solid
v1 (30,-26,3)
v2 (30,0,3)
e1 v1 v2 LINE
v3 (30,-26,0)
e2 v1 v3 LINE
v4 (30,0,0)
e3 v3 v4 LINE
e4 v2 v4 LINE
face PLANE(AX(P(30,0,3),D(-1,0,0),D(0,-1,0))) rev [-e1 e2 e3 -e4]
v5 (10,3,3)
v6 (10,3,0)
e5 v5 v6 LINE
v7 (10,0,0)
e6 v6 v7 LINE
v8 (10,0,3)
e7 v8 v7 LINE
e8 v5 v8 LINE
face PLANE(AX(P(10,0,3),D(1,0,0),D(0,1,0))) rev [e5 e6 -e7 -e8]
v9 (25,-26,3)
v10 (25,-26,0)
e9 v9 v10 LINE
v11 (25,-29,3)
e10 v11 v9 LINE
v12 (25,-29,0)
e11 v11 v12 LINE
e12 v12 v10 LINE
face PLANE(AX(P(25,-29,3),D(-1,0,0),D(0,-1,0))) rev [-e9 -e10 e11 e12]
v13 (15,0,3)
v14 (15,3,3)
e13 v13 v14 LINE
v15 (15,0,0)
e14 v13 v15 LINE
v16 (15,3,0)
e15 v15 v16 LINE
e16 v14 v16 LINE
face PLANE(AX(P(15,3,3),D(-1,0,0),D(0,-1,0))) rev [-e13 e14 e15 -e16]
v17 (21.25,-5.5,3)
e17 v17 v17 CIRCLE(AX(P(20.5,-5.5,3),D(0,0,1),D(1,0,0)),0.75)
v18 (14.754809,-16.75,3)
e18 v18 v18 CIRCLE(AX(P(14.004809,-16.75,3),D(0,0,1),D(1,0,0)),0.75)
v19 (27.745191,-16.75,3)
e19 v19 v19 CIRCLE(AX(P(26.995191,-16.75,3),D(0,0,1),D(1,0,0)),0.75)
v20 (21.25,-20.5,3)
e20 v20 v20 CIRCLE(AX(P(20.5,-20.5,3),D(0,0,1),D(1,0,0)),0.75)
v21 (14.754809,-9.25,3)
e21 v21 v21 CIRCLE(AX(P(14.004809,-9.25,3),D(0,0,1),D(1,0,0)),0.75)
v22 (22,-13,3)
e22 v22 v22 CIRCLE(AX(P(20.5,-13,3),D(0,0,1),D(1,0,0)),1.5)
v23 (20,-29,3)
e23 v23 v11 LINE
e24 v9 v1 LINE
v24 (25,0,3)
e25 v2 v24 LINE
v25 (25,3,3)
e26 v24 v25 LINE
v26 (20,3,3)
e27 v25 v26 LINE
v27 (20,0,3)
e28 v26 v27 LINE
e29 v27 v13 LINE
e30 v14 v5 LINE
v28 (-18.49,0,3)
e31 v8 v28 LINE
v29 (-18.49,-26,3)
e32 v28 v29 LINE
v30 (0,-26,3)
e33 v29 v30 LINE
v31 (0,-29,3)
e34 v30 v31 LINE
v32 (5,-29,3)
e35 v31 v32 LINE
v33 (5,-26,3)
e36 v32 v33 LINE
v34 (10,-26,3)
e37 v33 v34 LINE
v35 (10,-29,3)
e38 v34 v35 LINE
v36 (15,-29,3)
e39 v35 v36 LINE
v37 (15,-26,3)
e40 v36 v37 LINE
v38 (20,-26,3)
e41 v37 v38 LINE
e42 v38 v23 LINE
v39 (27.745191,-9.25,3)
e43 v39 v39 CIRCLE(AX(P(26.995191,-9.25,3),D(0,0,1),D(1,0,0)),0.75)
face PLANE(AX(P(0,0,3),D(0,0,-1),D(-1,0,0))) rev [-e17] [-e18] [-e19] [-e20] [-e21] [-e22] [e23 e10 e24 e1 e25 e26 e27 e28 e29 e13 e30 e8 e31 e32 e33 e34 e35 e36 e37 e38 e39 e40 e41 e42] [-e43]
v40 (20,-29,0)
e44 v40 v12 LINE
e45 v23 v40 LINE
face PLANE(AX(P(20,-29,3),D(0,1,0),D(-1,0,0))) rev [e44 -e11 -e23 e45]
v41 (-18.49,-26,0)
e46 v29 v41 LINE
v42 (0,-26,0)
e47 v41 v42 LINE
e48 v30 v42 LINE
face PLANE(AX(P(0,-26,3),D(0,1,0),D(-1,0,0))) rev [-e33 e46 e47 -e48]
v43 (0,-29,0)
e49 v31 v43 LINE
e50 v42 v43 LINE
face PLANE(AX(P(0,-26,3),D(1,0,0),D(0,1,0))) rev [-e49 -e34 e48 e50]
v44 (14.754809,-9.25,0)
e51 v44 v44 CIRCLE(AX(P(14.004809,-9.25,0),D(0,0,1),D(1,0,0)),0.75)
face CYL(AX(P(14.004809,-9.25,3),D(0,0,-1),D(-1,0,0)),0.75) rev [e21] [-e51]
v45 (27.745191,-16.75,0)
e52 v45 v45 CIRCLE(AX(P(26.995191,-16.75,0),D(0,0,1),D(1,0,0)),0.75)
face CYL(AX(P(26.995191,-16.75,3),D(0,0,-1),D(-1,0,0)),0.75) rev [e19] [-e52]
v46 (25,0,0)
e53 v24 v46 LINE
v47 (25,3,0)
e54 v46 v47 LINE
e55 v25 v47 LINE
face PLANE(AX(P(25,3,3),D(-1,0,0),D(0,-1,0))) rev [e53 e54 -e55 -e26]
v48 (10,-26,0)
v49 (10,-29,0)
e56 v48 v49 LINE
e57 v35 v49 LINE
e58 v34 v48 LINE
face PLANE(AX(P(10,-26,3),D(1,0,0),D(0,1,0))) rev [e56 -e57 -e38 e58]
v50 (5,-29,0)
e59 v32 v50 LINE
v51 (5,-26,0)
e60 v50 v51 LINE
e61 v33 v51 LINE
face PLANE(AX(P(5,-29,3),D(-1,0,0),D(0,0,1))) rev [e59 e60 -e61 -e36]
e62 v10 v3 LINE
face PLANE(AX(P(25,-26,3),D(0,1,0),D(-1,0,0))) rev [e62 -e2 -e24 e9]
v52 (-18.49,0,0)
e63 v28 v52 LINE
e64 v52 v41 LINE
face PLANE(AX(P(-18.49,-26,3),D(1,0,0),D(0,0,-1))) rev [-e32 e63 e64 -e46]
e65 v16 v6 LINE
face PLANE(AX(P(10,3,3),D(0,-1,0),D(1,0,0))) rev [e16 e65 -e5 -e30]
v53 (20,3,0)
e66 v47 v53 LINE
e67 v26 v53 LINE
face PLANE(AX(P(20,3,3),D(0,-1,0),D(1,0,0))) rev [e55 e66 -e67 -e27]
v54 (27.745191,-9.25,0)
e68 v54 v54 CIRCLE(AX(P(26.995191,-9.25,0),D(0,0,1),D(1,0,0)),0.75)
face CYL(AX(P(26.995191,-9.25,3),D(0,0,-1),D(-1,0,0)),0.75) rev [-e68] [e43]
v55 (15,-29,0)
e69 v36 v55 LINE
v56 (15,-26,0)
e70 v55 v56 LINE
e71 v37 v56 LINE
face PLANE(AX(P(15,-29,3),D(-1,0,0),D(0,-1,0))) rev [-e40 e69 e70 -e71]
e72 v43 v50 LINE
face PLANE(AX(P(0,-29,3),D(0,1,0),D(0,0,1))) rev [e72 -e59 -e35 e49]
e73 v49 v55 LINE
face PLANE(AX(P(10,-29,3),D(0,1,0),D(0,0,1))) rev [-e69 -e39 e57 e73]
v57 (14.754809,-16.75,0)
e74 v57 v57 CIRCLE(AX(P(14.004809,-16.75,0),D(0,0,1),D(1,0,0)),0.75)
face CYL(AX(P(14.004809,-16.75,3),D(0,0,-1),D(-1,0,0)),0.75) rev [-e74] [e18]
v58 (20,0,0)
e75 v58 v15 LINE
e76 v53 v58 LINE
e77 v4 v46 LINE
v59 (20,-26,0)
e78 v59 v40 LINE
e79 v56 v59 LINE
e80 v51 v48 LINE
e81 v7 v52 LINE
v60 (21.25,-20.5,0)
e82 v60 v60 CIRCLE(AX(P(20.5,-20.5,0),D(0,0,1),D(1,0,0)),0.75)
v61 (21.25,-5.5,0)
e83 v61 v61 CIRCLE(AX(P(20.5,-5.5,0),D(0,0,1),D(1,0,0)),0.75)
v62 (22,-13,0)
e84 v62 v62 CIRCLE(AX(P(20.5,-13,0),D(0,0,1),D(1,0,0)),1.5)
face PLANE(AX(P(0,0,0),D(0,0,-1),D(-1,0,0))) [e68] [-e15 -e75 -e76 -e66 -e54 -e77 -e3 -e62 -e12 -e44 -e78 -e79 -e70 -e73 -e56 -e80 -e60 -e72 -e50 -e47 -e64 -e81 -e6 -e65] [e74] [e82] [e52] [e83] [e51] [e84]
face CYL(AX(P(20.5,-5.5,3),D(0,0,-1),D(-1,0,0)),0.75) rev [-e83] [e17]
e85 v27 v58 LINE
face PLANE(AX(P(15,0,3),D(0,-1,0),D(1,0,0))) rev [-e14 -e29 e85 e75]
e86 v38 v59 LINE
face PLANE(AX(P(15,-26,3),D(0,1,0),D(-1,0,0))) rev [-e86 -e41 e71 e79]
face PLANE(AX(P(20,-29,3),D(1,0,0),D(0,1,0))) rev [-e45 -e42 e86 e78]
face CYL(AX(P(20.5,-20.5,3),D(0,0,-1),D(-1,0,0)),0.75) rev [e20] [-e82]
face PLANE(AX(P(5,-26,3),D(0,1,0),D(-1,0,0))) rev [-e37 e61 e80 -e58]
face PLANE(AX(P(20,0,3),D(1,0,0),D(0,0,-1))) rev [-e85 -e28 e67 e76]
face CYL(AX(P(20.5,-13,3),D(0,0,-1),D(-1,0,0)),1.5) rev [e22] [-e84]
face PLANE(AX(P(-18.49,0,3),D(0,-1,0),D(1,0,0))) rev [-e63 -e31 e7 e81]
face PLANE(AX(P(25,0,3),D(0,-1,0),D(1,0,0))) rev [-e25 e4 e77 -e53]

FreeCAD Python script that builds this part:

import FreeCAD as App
import Part
import Sketcher

V = App.Vector
Q = App.Units.Quantity

doc = App.newDocument("Part")
body = doc.addObject("PartDesign::Body", "Body")

# Sketch on XY plane
sketch1 = doc.addObject("Sketcher::SketchObject", "Sketch")
body.addObject(sketch1)
sketch1.AttachmentSupport = (doc.XY_Plane, [""])
sketch1.MapMode = "FlatFace"
sketch1.addGeometry(Part.LineSegment(V(10, 3, 0), V(10, 0, 0)), False)
sketch1.addGeometry(Part.LineSegment(V(10, 0, 0), V(-18.5, 0, 0)), False)
sketch1.addGeometry(Part.LineSegment(V(-18.5, 0, 0), V(-18.5, -26, 0)), False)
sketch1.addGeometry(Part.LineSegment(V(-18.5, -26, 0), V(0, -26, 0)), False)
sketch1.addGeometry(Part.LineSegment(V(0, -26, 0), V(0, -29, 0)), False)
sketch1.addGeometry(Part.LineSegment(V(0, -29, 0), V(5, -29, 0)), False)
sketch1.addGeometry(Part.LineSegment(V(5, -29, 0), V(5, -26, 0)), False)
sketch1.addGeometry(Part.LineSegment(V(5, -26, 0), V(10, -26, 0)), False)
sketch1.addGeometry(Part.LineSegment(V(10, -26, 0), V(10, -29, 0)), False)
sketch1.addGeometry(Part.LineSegment(V(10, -29, 0), V(15, -29, 0)), False)
sketch1.addGeometry(Part.LineSegment(V(15, -29, 0), V(15, -26, 0)), False)
sketch1.addGeometry(Part.LineSegment(V(15, -26, 0), V(20, -26, 0)), False)
sketch1.addGeometry(Part.LineSegment(V(20, -26, 0), V(20, -29, 0)), False)
sketch1.addGeometry(Part.LineSegment(V(20, -29, 0), V(25, -29, 0)), False)
sketch1.addGeometry(Part.LineSegment(V(25, -29, 0), V(25, -26, 0)), False)
sketch1.addGeometry(Part.LineSegment(V(25, -26, 0), V(30, -26, 0)), False)
sketch1.addGeometry(Part.LineSegment(V(30, -26, 0), V(30, 0, 0)), False)
sketch1.addGeometry(Part.LineSegment(V(30, 0, 0), V(25, 0, 0)), False)
sketch1.addGeometry(Part.LineSegment(V(25, 0, 0), V(25, 3, 0)), False)
sketch1.addGeometry(Part.LineSegment(V(25, 3, 0), V(20, 3, 0)), False)
sketch1.addGeometry(Part.LineSegment(V(20, 3, 0), V(20, 0, 0)), False)
sketch1.addGeometry(Part.LineSegment(V(20, 0, 0), V(15, 0, 0)), False)
sketch1.addGeometry(Part.LineSegment(V(15, 0, 0), V(15, 3, 0)), False)
sketch1.addGeometry(Part.LineSegment(V(15, 3, 0), V(10, 3, 0)), False)
sketch1.addGeometry(Part.Circle(V(20.5, -20.5, 0), V(0, 0, 1), 0.8), False)
sketch1.addGeometry(Part.Circle(V(27, -16.8, 0), V(0, 0, 1), 0.8), False)
sketch1.addGeometry(Part.Circle(V(14, -16.8, 0), V(0, 0, 1), 0.8), False)
sketch1.addGeometry(Part.Circle(V(27, -9.2, 0), V(0, 0, 1), 0.8), False)
sketch1.addGeometry(Part.Circle(V(20.5, -13, 0), V(0, 0, 1), 1.5), False)
sketch1.addGeometry(Part.Circle(V(20.5, -5.5, 0), V(0, 0, 1), 0.8), False)
sketch1.addGeometry(Part.Circle(V(14, -9.2, 0), V(0, 0, 1), 0.8), False)
sketch1.addConstraint(Sketcher.Constraint("Coincident", 0, 2, 1, 1))
sketch1.addConstraint(Sketcher.Constraint("Coincident", 1, 2, 2, 1))
sketch1.addConstraint(Sketcher.Constraint("Coincident", 2, 2, 3, 1))
sketch1.addConstraint(Sketcher.Constraint("Coincident", 3, 2, 4, 1))
sketch1.addConstraint(Sketcher.Constraint("Coincident", 4, 2, 5, 1))
sketch1.addConstraint(Sketcher.Constraint("Coincident", 5, 2, 6, 1))
sketch1.addConstraint(Sketcher.Constraint("Coincident", 6, 2, 7, 1))
sketch1.addConstraint(Sketcher.Constraint("Coincident", 7, 2, 8, 1))
sketch1.addConstraint(Sketcher.Constraint("Coincident", 8, 2, 9, 1))
sketch1.addConstraint(Sketcher.Constraint("Coincident", 9, 2, 10, 1))
sketch1.addConstraint(Sketcher.Constraint("Coincident", 10, 2, 11, 1))
sketch1.addConstraint(Sketcher.Constraint("Coincident", 11, 2, 12, 1))
sketch1.addConstraint(Sketcher.Constraint("Coincident", 12, 2, 13, 1))
sketch1.addConstraint(Sketcher.Constraint("Coincident", 13, 2, 14, 1))
sketch1.addConstraint(Sketcher.Constraint("Coincident", 14, 2, 15, 1))
sketch1.addConstraint(Sketcher.Constraint("Coincident", 15, 2, 16, 1))
sketch1.addConstraint(Sketcher.Constraint("Coincident", 16, 2, 17, 1))
sketch1.addConstraint(Sketcher.Constraint("Coincident", 17, 2, 18, 1))
sketch1.addConstraint(Sketcher.Constraint("Coincident", 18, 2, 19, 1))
sketch1.addConstraint(Sketcher.Constraint("Coincident", 19, 2, 20, 1))
sketch1.addConstraint(Sketcher.Constraint("Coincident", 20, 2, 21, 1))
sketch1.addConstraint(Sketcher.Constraint("Coincident", 21, 2, 22, 1))
sketch1.addConstraint(Sketcher.Constraint("Coincident", 22, 2, 23, 1))
sketch1.addConstraint(Sketcher.Constraint("Coincident", 23, 2, 0, 1))
sketch1.addConstraint(Sketcher.Constraint("Vertical", 0))
sketch1.addConstraint(Sketcher.Constraint("Horizontal", 1))
sketch1.addConstraint(Sketcher.Constraint("Vertical", 2))
sketch1.addConstraint(Sketcher.Constraint("Horizontal", 3))
sketch1.addConstraint(Sketcher.Constraint("Vertical", 4))
sketch1.addConstraint(Sketcher.Constraint("Horizontal", 5))
sketch1.addConstraint(Sketcher.Constraint("Vertical", 6))
sketch1.addConstraint(Sketcher.Constraint("Horizontal", 7))
sketch1.addConstraint(Sketcher.Constraint("Vertical", 8))
sketch1.addConstraint(Sketcher.Constraint("Horizontal", 9))
sketch1.addConstraint(Sketcher.Constraint("Vertical", 10))
sketch1.addConstraint(Sketcher.Constraint("Horizontal", 11))
sketch1.addConstraint(Sketcher.Constraint("Vertical", 12))
sketch1.addConstraint(Sketcher.Constraint("Horizontal", 13))
sketch1.addConstraint(Sketcher.Constraint("Vertical", 14))
sketch1.addConstraint(Sketcher.Constraint("Horizontal", 15))
sketch1.addConstraint(Sketcher.Constraint("Vertical", 16))
sketch1.addConstraint(Sketcher.Constraint("Horizontal", 17))
sketch1.addConstraint(Sketcher.Constraint("Vertical", 18))
sketch1.addConstraint(Sketcher.Constraint("Horizontal", 19))
sketch1.addConstraint(Sketcher.Constraint("Vertical", 20))
sketch1.addConstraint(Sketcher.Constraint("Horizontal", 21))
sketch1.addConstraint(Sketcher.Constraint("Vertical", 22))
sketch1.addConstraint(Sketcher.Constraint("Horizontal", 23))
sketch1.addConstraint(Sketcher.Constraint("Equal", 24, 25))
sketch1.addConstraint(Sketcher.Constraint("Equal", 25, 26))
sketch1.addConstraint(Sketcher.Constraint("Equal", 26, 27))
sketch1.addConstraint(Sketcher.Constraint("Equal", 27, 29))
sketch1.addConstraint(Sketcher.Constraint("Equal", 29, 30))
sketch1.addConstraint(Sketcher.Constraint("PointOnObject", 0, 2, -1))
sketch1.addConstraint(Sketcher.Constraint("PointOnObject", 3, 2, -2))
sketch1.addConstraint(Sketcher.Constraint("PointOnObject", 16, 2, -1))
sketch1.addConstraint(Sketcher.Constraint("PointOnObject", 20, 2, -1))
sketch1.addConstraint(Sketcher.Constraint("Horizontal", 25, 3, 26, 3))
sketch1.addConstraint(Sketcher.Constraint("Horizontal", 27, 3, 30, 3))
sketch1.addConstraint(Sketcher.Constraint("Horizontal", 3, 2, 6, 2))
sketch1.addConstraint(Sketcher.Constraint("Horizontal", 5, 2, 8, 2))
sketch1.addConstraint(Sketcher.Constraint("Horizontal", 7, 2, 10, 2))
sketch1.addConstraint(Sketcher.Constraint("Horizontal", 9, 2, 12, 2))
sketch1.addConstraint(Sketcher.Constraint("Horizontal", 11, 2, 14, 2))
sketch1.addConstraint(Sketcher.Constraint("Horizontal", 19, 2, 22, 2))
sketch1.addConstraint(Sketcher.Constraint("Vertical", 25, 3, 27, 3))
sketch1.addConstraint(Sketcher.Constraint("Vertical", 24, 3, 28, 3))
sketch1.addConstraint(Sketcher.Constraint("Vertical", 28, 3, 29, 3))
sketch1.addConstraint(Sketcher.Constraint("Vertical", 26, 3, 30, 3))
sketch1.addConstraint(Sketcher.Constraint("Vertical", 0, 2, 7, 2))
sketch1.addConstraint(Sketcher.Constraint("Vertical", 14, 2, 17, 2))
sketch1.addConstraint(Sketcher.Constraint("Vertical", 12, 2, 19, 2))
sketch1.addConstraint(Sketcher.Constraint("Vertical", 10, 2, 21, 2))
sketch1.addConstraint(Sketcher.Constraint("Equal", 5, 7))
sketch1.addConstraint(Sketcher.Constraint("Equal", 7, 9))
sketch1.addConstraint(Sketcher.Constraint("Equal", 9, 11))
sketch1.addConstraint(Sketcher.Constraint("Equal", 11, 13))
sketch1.addConstraint(Sketcher.Constraint("Equal", 13, 15))
sketch1.addConstraint(Sketcher.Constraint("Equal", 0, 4))
sketch1.addConstraint(Sketcher.Constraint("Diameter", 28, Q("3 mm")))
sketch1.addConstraint(Sketcher.Constraint("Diameter", 24, Q("1.5 mm")))
sketch1.addConstraint(Sketcher.Constraint("DistanceX", 5, 1, 5, 2, Q("5 mm")))
sketch1.addConstraint(Sketcher.Constraint("DistanceY", 0, 2, 0, 1, Q("3 mm")))
sketch1.addConstraint(Sketcher.Constraint("DistanceY", 2, 2, 2, 1, Q("26 mm")))
sketch1.addConstraint(Sketcher.Constraint("DistanceY", 28, 3, -1, 1, Q("13 mm")))
sketch1.addConstraint(Sketcher.Constraint("DistanceY", 24, 3, 29, 3, Q("15 mm")))
sketch1.addConstraint(Sketcher.Constraint("DistanceX", 1, 2, 1, 1, Q("28.49 mm")))
sketch1.addConstraint(Sketcher.Constraint("DistanceX", -1, 1, 24, 3, Q("20.5 mm")))
sketch1.addConstraint(Sketcher.Constraint("DistanceY", 24, 3, -1, 1, Q("20.5 mm")))
sketch1.addConstraint(Sketcher.Constraint("DistanceY", 25, 3, 27, 3, Q("7.5 mm")))
sketch1.addConstraint(Sketcher.Constraint("DistanceY", 25, 3, -1, 1, Q("16.75 mm")))
sketch1.addConstraint(Sketcher.Constraint("DistanceX", -1, 1, 25, 3, Q("26.995191 mm")))
sketch1.addConstraint(Sketcher.Constraint("DistanceX", -1, 1, 26, 3, Q("14.004809 mm")))
pad1 = doc.addObject("PartDesign::Pad", "Pad")
body.addObject(pad1)
pad1.Profile = sketch1
pad1.Length = 3

doc.recompute()
